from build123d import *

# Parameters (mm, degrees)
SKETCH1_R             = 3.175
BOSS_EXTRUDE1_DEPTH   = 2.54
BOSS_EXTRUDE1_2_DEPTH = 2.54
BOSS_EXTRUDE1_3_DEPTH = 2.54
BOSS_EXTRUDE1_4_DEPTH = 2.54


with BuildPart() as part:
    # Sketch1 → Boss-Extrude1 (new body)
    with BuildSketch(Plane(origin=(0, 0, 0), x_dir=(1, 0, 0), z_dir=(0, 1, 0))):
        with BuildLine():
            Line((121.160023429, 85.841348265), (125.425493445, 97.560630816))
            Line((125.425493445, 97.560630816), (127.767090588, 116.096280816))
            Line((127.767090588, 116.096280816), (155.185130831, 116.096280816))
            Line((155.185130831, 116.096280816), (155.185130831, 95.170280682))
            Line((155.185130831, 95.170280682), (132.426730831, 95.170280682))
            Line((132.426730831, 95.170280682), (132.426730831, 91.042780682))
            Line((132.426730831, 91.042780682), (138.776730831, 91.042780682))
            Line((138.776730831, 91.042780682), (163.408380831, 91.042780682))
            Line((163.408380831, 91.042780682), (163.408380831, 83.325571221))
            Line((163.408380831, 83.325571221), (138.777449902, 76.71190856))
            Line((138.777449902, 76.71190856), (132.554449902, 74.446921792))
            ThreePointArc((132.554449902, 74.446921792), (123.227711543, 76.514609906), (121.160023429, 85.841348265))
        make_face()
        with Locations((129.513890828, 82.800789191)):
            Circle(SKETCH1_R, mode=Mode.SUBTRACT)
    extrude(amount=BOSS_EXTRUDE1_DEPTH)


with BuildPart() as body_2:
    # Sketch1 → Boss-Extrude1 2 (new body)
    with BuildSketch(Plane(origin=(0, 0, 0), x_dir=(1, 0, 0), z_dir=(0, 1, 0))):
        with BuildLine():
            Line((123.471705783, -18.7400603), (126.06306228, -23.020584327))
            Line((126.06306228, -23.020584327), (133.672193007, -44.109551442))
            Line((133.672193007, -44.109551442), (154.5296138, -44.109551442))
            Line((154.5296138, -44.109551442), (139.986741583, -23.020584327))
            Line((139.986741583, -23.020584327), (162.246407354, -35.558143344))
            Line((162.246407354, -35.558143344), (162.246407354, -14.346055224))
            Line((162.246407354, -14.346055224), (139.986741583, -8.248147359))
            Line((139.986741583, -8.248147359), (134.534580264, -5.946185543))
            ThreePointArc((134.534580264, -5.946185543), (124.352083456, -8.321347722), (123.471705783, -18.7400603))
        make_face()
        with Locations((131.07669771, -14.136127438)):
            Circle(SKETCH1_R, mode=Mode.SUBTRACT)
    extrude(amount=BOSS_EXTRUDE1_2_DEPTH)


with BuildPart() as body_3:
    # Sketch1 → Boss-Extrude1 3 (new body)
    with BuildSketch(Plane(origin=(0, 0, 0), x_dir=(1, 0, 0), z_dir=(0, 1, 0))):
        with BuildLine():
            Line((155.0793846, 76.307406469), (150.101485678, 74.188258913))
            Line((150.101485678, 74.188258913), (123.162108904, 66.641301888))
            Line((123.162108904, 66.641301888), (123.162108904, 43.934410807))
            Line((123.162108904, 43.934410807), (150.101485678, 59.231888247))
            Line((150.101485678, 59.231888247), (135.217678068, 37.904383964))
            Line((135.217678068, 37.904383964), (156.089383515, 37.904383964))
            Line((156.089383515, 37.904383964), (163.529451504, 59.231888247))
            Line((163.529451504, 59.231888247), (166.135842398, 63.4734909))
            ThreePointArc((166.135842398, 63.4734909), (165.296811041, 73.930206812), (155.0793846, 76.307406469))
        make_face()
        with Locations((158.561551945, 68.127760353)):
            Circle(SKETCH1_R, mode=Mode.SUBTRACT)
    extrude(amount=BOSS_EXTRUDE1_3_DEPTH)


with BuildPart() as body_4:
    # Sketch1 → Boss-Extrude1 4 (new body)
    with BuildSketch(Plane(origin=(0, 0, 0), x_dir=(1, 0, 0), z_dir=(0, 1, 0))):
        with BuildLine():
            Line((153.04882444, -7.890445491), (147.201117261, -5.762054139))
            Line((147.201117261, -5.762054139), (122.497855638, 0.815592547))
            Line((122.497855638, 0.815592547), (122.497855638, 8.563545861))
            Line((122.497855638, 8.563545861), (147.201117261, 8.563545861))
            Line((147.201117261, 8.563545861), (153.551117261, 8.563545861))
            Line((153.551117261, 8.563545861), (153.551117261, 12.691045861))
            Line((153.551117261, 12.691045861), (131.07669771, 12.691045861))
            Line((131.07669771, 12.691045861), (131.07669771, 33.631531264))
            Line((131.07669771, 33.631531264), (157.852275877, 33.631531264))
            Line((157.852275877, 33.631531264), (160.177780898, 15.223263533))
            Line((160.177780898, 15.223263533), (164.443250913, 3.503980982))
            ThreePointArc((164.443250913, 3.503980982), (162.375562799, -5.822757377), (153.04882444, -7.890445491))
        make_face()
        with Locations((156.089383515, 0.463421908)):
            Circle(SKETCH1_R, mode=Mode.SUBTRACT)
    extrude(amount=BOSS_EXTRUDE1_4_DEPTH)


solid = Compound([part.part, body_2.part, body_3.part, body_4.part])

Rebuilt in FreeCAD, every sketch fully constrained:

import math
import FreeCAD as App
import Part
import Sketcher
from FreeCAD import Vector
Q = App.Units.Quantity

doc = App.newDocument("Part")
params = doc.addObject("Spreadsheet::Sheet", "Params")
for row, (alias, value) in enumerate([
    ("sketch1_diameter", "0.25 in"),
    ("sketch1_radius", "0.35 in"),
    ("sketch1_width", "0.896 in"),
    ("sketch1_length", "0.491 in"),
    ("pad1_length", "0.1 in"),
    ("sketch2_diameter", "0.25 in"),
    ("sketch2_radius", "0.35 in"),
    ("sketch2_length", "0.197 in"),
    ("sketch2_length2", "0.233 in"),
    ("pad2_length", "0.1 in"),
    ("sketch3_diameter", "0.25 in"),
    ("sketch3_radius", "0.35 in"),
    ("sketch3_length", "0.213 in"),
    ("sketch3_length2", "0.196 in"),
    ("pad3_length", "0.1 in"),
    ("sketch4_diameter", "0.25 in"),
    ("sketch4_radius", "0.35 in"),
    ("sketch4_length", "0.245 in"),
    ("sketch4_length2", "0.491 in"),
    ("pad4_length", "0.1 in"),
], start=1):
    params.set(f"A{row}", alias)
    params.set(f"B{row}", "=" + value)
    params.setAlias(f"B{row}", alias)

body = doc.addObject("PartDesign::Body", "Body")

sketch1 = body.newObject("Sketcher::SketchObject", "Sketch")
sketch1.AttachmentSupport = (doc.getObject("XZ_Plane"), [""])
sketch1.MapMode = "FlatFace"
sketch1.addGeometry([
    Part.LineSegment(Vector(125.425493, -97.560631, 0), Vector(121.160023, -85.841348, 0)),
    Part.ArcOfCircle(Part.Circle(Vector(129.513891, -82.800789, 0), Vector(0, 0, 1), 8.89), math.radians(70), math.radians(200)),
    Part.LineSegment(Vector(132.55445, -74.446922, 0), Vector(138.77745, -76.711909, 0)),
    Part.LineSegment(Vector(138.77745, -76.711909, 0), Vector(163.408381, -83.325571, 0)),
    Part.LineSegment(Vector(163.408381, -83.325571, 0), Vector(163.408381, -91.042781, 0)),
    Part.LineSegment(Vector(163.408381, -91.042781, 0), Vector(132.426731, -91.042781, 0)),
    Part.LineSegment(Vector(132.426731, -91.042781, 0), Vector(132.426731, -95.170281, 0)),
    Part.LineSegment(Vector(132.426731, -95.170281, 0), Vector(155.185131, -95.170281, 0)),
    Part.LineSegment(Vector(155.185131, -95.170281, 0), Vector(155.185131, -116.096281, 0)),
    Part.LineSegment(Vector(155.185131, -116.096281, 0), Vector(127.767091, -116.096281, 0)),
    Part.LineSegment(Vector(127.767091, -116.096281, 0), Vector(125.425493, -97.560631, 0)),
    Part.Circle(Vector(129.513891, -82.800789, 0), Vector(0, 0, 1), 3.175),
], False)
sketch1.addConstraint([
    Sketcher.Constraint("Tangent", 0, 2, 1, 2),
    Sketcher.Constraint("Tangent", 1, 1, 2, 1),
    Sketcher.Constraint("Coincident", 2, 2, 3, 1),
    Sketcher.Constraint("Coincident", 3, 2, 4, 1),
    Sketcher.Constraint("Coincident", 4, 2, 5, 1),
    Sketcher.Constraint("Coincident", 5, 2, 6, 1),
    Sketcher.Constraint("Coincident", 6, 2, 7, 1),
    Sketcher.Constraint("Coincident", 7, 2, 8, 1),
    Sketcher.Constraint("Coincident", 8, 2, 9, 1),
    Sketcher.Constraint("Coincident", 9, 2, 10, 1),
    Sketcher.Constraint("Coincident", 10, 2, 0, 1),
    Sketcher.Constraint("Vertical", 4),
    Sketcher.Constraint("Horizontal", 5),
    Sketcher.Constraint("Vertical", 6),
    Sketcher.Constraint("Horizontal", 7),
    Sketcher.Constraint("Vertical", 8),
    Sketcher.Constraint("Horizontal", 9),
    Sketcher.Constraint("Coincident", 11, 3, 1, 3),
    Sketcher.Constraint("Diameter", 11, Q("0.25 in")),
    Sketcher.Constraint("Radius", 1, Q("0.35 in")),
    Sketcher.Constraint("Angle", 0, Q("110 deg")),
    Sketcher.Constraint("Angle", 2, Q("-20 deg")),
    Sketcher.Constraint("Angle", 10, Q("97.2 deg")),
    Sketcher.Constraint("DistanceX", 7, 1, 7, 2, Q("0.896 in")),
    Sketcher.Constraint("Angle", 3, Q("-15.03 deg")),
    Sketcher.Constraint("Distance", 0, Q("0.491 in")),
    Sketcher.Constraint("DistanceY", 6, 2, 6, 1, Q("0.1625 in")),
    Sketcher.Constraint("DistanceX", 1, 1, 2, 2, Q("0.245 in")),
    Sketcher.Constraint("DistanceY", 8, 2, 8, 1, Q("20.926 mm")),
    Sketcher.Constraint("DistanceX", 5, 2, 5, 1, Q("30.98165 mm")),
    Sketcher.Constraint("DistanceX", 9, 2, 9, 1, Q("27.41804 mm")),
    Sketcher.Constraint("DistanceY", 4, 2, 4, 1, Q("7.717209 mm")),
    Sketcher.Constraint("DistanceX", -1, 1, 1, 3, Q("129.513891 mm")),
    Sketcher.Constraint("DistanceY", 1, 3, -1, 1, Q("82.800789 mm")),
])
sketch1.setExpression("Constraints[18]", "Params.sketch1_diameter")
sketch1.setExpression("Constraints[19]", "Params.sketch1_radius")
sketch1.setExpression("Constraints[23]", "Params.sketch1_width")
sketch1.setExpression("Constraints[25]", "Params.sketch1_length")
pad1 = body.newObject("PartDesign::Pad", "Pad")
pad1.Profile = sketch1
pad1.setExpression("Length", "Params.pad1_length")
pad1.Reversed = True
body2 = doc.addObject("PartDesign::Body", "Body001")

sketch2 = body2.newObject("Sketcher::SketchObject", "Sketch001")
sketch2.AttachmentSupport = (doc.getObject("XZ_Plane001"), [""])
sketch2.MapMode = "FlatFace"
sketch2.addGeometry([
    Part.LineSegment(Vector(123.471706, 18.74006, 0), Vector(126.063062, 23.020584, 0)),
    Part.LineSegment(Vector(126.063062, 23.020584, 0), Vector(133.672193, 44.109551, 0)),
    Part.LineSegment(Vector(133.672193, 44.109551, 0), Vector(154.529614, 44.109551, 0)),
    Part.LineSegment(Vector(154.529614, 44.109551, 0), Vector(139.986742, 23.020584, 0)),
    Part.LineSegment(Vector(139.986742, 23.020584, 0), Vector(162.246407, 35.558143, 0)),
    Part.LineSegment(Vector(162.246407, 35.558143, 0), Vector(162.246407, 14.346055, 0)),
    Part.LineSegment(Vector(162.246407, 14.346055, 0), Vector(139.986742, 8.248147, 0)),
    Part.LineSegment(Vector(139.986742, 8.248147, 0), Vector(134.53458, 5.946186, 0)),
    Part.ArcOfCircle(Part.Circle(Vector(131.076698, 14.136127, 0), Vector(0, 0, 1), 8.89), math.radians(148.81), math.radians(292.89)),
    Part.Circle(Vector(131.076698, 14.136127, 0), Vector(0, 0, 1), 3.175),
], False)
sketch2.addConstraint([
    Sketcher.Constraint("Coincident", 0, 2, 1, 1),
    Sketcher.Constraint("Coincident", 1, 2, 2, 1),
    Sketcher.Constraint("Coincident", 2, 2, 3, 1),
    Sketcher.Constraint("Coincident", 3, 2, 4, 1),
    Sketcher.Constraint("Coincident", 4, 2, 5, 1),
    Sketcher.Constraint("Coincident", 5, 2, 6, 1),
    Sketcher.Constraint("Coincident", 6, 2, 7, 1),
    Sketcher.Constraint("Tangent", 7, 2, 8, 2),
    Sketcher.Constraint("Tangent", 8, 1, 0, 1),
    Sketcher.Constraint("Horizontal", 2),
    Sketcher.Constraint("Vertical", 5),
    Sketcher.Constraint("Coincident", 9, 3, 8, 3),
    Sketcher.Constraint("Horizontal", 0, 2, 3, 2),
    Sketcher.Constraint("Vertical", 3, 2, 6, 2),
    Sketcher.Constraint("Diameter", 9, Q("0.25 in")),
    Sketcher.Constraint("Radius", 8, Q("0.35 in")),
    Sketcher.Constraint("Angle", 0, Q("58.81 deg")),
    Sketcher.Constraint("Angle", 1, Q("70.16 deg")),
    Sketcher.Constraint("Angle", 3, Q("-124.59 deg")),
    Sketcher.Constraint("Angle", 4, Q("29.39 deg")),
    Sketcher.Constraint("Angle", 6, Q("-164.68 deg")),
    Sketcher.Constraint("Angle", 7, Q("-157.11 deg")),
    Sketcher.Constraint("Distance", 0, Q("0.197 in")),
    Sketcher.Constraint("Distance", 7, Q("0.233 in")),
    Sketcher.Constraint("DistanceX", -1, 1, 8, 3, Q("5.1604999 in")),
    Sketcher.Constraint("Distance", 6, Q("23.079801 mm")),
    Sketcher.Constraint("DistanceX", 2, 1, 2, 2, Q("20.857421 mm")),
    Sketcher.Constraint("DistanceY", -1, 1, 1, 2, Q("44.109551 mm")),
])
sketch2.setExpression("Constraints[14]", "Params.sketch2_diameter")
sketch2.setExpression("Constraints[15]", "Params.sketch2_radius")
sketch2.setExpression("Constraints[22]", "Params.sketch2_length")
sketch2.setExpression("Constraints[23]", "Params.sketch2_length2")
pad2 = body2.newObject("PartDesign::Pad", "Pad001")
pad2.Profile = sketch2
pad2.setExpression("Length", "Params.pad2_length")
pad2.Reversed = True
body3 = doc.addObject("PartDesign::Body", "Body002")

sketch3 = body3.newObject("Sketcher::SketchObject", "Sketch002")
sketch3.AttachmentSupport = (doc.getObject("XZ_Plane002"), [""])
sketch3.MapMode = "FlatFace"
sketch3.addGeometry([
    Part.LineSegment(Vector(155.079385, -76.307406, 0), Vector(150.101486, -74.188259, 0)),
    Part.LineSegment(Vector(150.101486, -74.188259, 0), Vector(123.162109, -66.641302, 0)),
    Part.LineSegment(Vector(123.162109, -66.641302, 0), Vector(123.162109, -43.934411, 0)),
    Part.LineSegment(Vector(123.162109, -43.934411, 0), Vector(150.101486, -59.231888, 0)),
    Part.LineSegment(Vector(150.101486, -59.231888, 0), Vector(135.217678, -37.904384, 0)),
    Part.LineSegment(Vector(135.217678, -37.904384, 0), Vector(156.089384, -37.904384, 0)),
    Part.LineSegment(Vector(156.089384, -37.904384, 0), Vector(163.529452, -59.231888, 0)),
    Part.LineSegment(Vector(163.529452, -59.231888, 0), Vector(166.135842, -63.473491, 0)),
    Part.ArcOfCircle(Part.Circle(Vector(158.561552, -68.12776, 0), Vector(0, 0, 1), 8.89), math.radians(-113.06), math.radians(31.57)),
    Part.Circle(Vector(158.561552, -68.12776, 0), Vector(0, 0, 1), 3.175),
], False)
sketch3.addConstraint([
    Sketcher.Constraint("Coincident", 0, 2, 1, 1),
    Sketcher.Constraint("Coincident", 1, 2, 2, 1),
    Sketcher.Constraint("Coincident", 2, 2, 3, 1),
    Sketcher.Constraint("Coincident", 3, 2, 4, 1),
    Sketcher.Constraint("Coincident", 4, 2, 5, 1),
    Sketcher.Constraint("Coincident", 5, 2, 6, 1),
    Sketcher.Constraint("Coincident", 6, 2, 7, 1),
    Sketcher.Constraint("Tangent", 7, 2, 8, 2),
    Sketcher.Constraint("Tangent", 8, 1, 0, 1),
    Sketcher.Constraint("Vertical", 2),
    Sketcher.Constraint("Horizontal", 5),
    Sketcher.Constraint("Coincident", 9, 3, 8, 3),
    Sketcher.Constraint("Horizontal", 3, 2, 6, 2),
    Sketcher.Constraint("Vertical", 0, 2, 3, 2),
    Sketcher.Constraint("Diameter", 9, Q("0.25 in")),
    Sketcher.Constraint("Radius", 8, Q("0.35 in")),
    Sketcher.Constraint("Angle", 0, Q("156.94 deg")),
    Sketcher.Constraint("Angle", 1, Q("164.35 deg")),
    Sketcher.Constraint("Angle", 3, Q("-29.59 deg")),
    Sketcher.Constraint("Angle", 4, Q("124.91 deg")),
    Sketcher.Constraint("Angle", 7, Q("-58.43 deg")),
    Sketcher.Constraint("Distance", 0, Q("0.213 in")),
    Sketcher.Constraint("Distance", 7, Q("0.196 in")),
    Sketcher.Constraint("DistanceY", 2, 1, 2, 2, Q("22.706891 mm")),
    Sketcher.Constraint("DistanceY", 1, 2, -1, 1, Q("66.641302 mm")),
    Sketcher.Constraint("DistanceX", 5, 1, 5, 2, Q("20.871705 mm")),
    Sketcher.Constraint("DistanceX", -1, 1, 8, 3, Q("158.561552 mm")),
    Sketcher.Constraint("DistanceX", -1, 1, 4, 2, Q("135.217678 mm")),
])
sketch3.setExpression("Constraints[14]", "Params.sketch3_diameter")
sketch3.setExpression("Constraints[15]", "Params.sketch3_radius")
sketch3.setExpression("Constraints[21]", "Params.sketch3_length")
sketch3.setExpression("Constraints[22]", "Params.sketch3_length2")
pad3 = body3.newObject("PartDesign::Pad", "Pad002")
pad3.Profile = sketch3
pad3.setExpression("Length", "Params.pad3_length")
pad3.Reversed = True
body4 = doc.addObject("PartDesign::Body", "Body003")

sketch4 = body4.newObject("Sketcher::SketchObject", "Sketch003")
sketch4.AttachmentSupport = (doc.getObject("XZ_Plane003"), [""])
sketch4.MapMode = "FlatFace"
sketch4.addGeometry([
    Part.LineSegment(Vector(147.201117, 5.762054, 0), Vector(153.048824, 7.890445, 0)),
    Part.ArcOfCircle(Part.Circle(Vector(156.089384, -0.463422, 0), Vector(0, 0, 1), 8.89), math.radians(-20), math.radians(110)),
    Part.LineSegment(Vector(164.443251, -3.503981, 0), Vector(160.177781, -15.223264, 0)),
    Part.LineSegment(Vector(160.177781, -15.223264, 0), Vector(157.852276, -33.631531, 0)),
    Part.LineSegment(Vector(157.852276, -33.631531, 0), Vector(131.076698, -33.631531, 0)),
    Part.LineSegment(Vector(131.076698, -33.631531, 0), Vector(131.076698, -12.691046, 0)),
    Part.LineSegment(Vector(131.076698, -12.691046, 0), Vector(153.551117, -12.691046, 0)),
    Part.LineSegment(Vector(153.551117, -12.691046, 0), Vector(153.551117, -8.563546, 0)),
    Part.LineSegment(Vector(153.551117, -8.563546, 0), Vector(122.497856, -8.563546, 0)),
    Part.LineSegment(Vector(122.497856, -8.563546, 0), Vector(122.497856, -0.815593, 0)),
    Part.LineSegment(Vector(122.497856, -0.815593, 0), Vector(147.201117, 5.762054, 0)),
    Part.Circle(Vector(156.089384, -0.463422, 0), Vector(0, 0, 1), 3.175),
], False)
sketch4.addConstraint([
    Sketcher.Constraint("Tangent", 0, 2, 1, 2),
    Sketcher.Constraint("Tangent", 1, 1, 2, 1),
    Sketcher.Constraint("Coincident", 2, 2, 3, 1),
    Sketcher.Constraint("Coincident", 3, 2, 4, 1),
    Sketcher.Constraint("Coincident", 4, 2, 5, 1),
    Sketcher.Constraint("Coincident", 5, 2, 6, 1),
    Sketcher.Constraint("Coincident", 6, 2, 7, 1),
    Sketcher.Constraint("Coincident", 7, 2, 8, 1),
    Sketcher.Constraint("Coincident", 8, 2, 9, 1),
    Sketcher.Constraint("Coincident", 9, 2, 10, 1),
    Sketcher.Constraint("Coincident", 10, 2, 0, 1),
    Sketcher.Constraint("Horizontal", 4),
    Sketcher.Constraint("Vertical", 5),
    Sketcher.Constraint("Horizontal", 6),
    Sketcher.Constraint("Vertical", 7),
    Sketcher.Constraint("Horizontal", 8),
    Sketcher.Constraint("Vertical", 9),
    Sketcher.Constraint("Coincident", 11, 3, 1, 3),
    Sketcher.Constraint("Diameter", 11, Q("0.25 in")),
    Sketcher.Constraint("Radius", 1, Q("0.35 in")),
    Sketcher.Constraint("Angle", 0, Q("20 deg")),
    Sketcher.Constraint("Angle", 2, Q("-110 deg")),
    Sketcher.Constraint("Angle", 3, Q("-97.2 deg")),
    Sketcher.Constraint("Angle", 10, Q("14.91 deg")),
    Sketcher.Constraint("DistanceX", 10, 2, 7, 2, Q("0.25 in")),
    Sketcher.Constraint("Distance", 0, Q("0.245 in")),
    Sketcher.Constraint("Distance", 2, Q("0.491 in")),
    Sketcher.Constraint("DistanceY", 7, 1, 7, 2, Q("0.1625 in")),
    Sketcher.Constraint("DistanceY", 7, 2, 10, 2, Q("0.564 in")),
    Sketcher.Constraint("DistanceX", -1, 1, 4, 2, Q("5.1604999 in")),
    Sketcher.Constraint("DistanceX", 4, 2, 4, 1, Q("26.775578 mm")),
    Sketcher.Constraint("DistanceX", 6, 1, 6, 2, Q("22.47442 mm")),
    Sketcher.Constraint("DistanceX", 8, 2, 8, 1, Q("31.053262 mm")),
    Sketcher.Constraint("DistanceY", 1, 3, -1, 1, Q("0.463422 mm")),
])
sketch4.setExpression("Constraints[18]", "Params.sketch4_diameter")
sketch4.setExpression("Constraints[19]", "Params.sketch4_radius")
sketch4.setExpression("Constraints[25]", "Params.sketch4_length")
sketch4.setExpression("Constraints[26]", "Params.sketch4_length2")
pad4 = body4.newObject("PartDesign::Pad", "Pad003")
pad4.Profile = sketch4
pad4.setExpression("Length", "Params.pad4_length")
pad4.Reversed = True

doc.recompute()
